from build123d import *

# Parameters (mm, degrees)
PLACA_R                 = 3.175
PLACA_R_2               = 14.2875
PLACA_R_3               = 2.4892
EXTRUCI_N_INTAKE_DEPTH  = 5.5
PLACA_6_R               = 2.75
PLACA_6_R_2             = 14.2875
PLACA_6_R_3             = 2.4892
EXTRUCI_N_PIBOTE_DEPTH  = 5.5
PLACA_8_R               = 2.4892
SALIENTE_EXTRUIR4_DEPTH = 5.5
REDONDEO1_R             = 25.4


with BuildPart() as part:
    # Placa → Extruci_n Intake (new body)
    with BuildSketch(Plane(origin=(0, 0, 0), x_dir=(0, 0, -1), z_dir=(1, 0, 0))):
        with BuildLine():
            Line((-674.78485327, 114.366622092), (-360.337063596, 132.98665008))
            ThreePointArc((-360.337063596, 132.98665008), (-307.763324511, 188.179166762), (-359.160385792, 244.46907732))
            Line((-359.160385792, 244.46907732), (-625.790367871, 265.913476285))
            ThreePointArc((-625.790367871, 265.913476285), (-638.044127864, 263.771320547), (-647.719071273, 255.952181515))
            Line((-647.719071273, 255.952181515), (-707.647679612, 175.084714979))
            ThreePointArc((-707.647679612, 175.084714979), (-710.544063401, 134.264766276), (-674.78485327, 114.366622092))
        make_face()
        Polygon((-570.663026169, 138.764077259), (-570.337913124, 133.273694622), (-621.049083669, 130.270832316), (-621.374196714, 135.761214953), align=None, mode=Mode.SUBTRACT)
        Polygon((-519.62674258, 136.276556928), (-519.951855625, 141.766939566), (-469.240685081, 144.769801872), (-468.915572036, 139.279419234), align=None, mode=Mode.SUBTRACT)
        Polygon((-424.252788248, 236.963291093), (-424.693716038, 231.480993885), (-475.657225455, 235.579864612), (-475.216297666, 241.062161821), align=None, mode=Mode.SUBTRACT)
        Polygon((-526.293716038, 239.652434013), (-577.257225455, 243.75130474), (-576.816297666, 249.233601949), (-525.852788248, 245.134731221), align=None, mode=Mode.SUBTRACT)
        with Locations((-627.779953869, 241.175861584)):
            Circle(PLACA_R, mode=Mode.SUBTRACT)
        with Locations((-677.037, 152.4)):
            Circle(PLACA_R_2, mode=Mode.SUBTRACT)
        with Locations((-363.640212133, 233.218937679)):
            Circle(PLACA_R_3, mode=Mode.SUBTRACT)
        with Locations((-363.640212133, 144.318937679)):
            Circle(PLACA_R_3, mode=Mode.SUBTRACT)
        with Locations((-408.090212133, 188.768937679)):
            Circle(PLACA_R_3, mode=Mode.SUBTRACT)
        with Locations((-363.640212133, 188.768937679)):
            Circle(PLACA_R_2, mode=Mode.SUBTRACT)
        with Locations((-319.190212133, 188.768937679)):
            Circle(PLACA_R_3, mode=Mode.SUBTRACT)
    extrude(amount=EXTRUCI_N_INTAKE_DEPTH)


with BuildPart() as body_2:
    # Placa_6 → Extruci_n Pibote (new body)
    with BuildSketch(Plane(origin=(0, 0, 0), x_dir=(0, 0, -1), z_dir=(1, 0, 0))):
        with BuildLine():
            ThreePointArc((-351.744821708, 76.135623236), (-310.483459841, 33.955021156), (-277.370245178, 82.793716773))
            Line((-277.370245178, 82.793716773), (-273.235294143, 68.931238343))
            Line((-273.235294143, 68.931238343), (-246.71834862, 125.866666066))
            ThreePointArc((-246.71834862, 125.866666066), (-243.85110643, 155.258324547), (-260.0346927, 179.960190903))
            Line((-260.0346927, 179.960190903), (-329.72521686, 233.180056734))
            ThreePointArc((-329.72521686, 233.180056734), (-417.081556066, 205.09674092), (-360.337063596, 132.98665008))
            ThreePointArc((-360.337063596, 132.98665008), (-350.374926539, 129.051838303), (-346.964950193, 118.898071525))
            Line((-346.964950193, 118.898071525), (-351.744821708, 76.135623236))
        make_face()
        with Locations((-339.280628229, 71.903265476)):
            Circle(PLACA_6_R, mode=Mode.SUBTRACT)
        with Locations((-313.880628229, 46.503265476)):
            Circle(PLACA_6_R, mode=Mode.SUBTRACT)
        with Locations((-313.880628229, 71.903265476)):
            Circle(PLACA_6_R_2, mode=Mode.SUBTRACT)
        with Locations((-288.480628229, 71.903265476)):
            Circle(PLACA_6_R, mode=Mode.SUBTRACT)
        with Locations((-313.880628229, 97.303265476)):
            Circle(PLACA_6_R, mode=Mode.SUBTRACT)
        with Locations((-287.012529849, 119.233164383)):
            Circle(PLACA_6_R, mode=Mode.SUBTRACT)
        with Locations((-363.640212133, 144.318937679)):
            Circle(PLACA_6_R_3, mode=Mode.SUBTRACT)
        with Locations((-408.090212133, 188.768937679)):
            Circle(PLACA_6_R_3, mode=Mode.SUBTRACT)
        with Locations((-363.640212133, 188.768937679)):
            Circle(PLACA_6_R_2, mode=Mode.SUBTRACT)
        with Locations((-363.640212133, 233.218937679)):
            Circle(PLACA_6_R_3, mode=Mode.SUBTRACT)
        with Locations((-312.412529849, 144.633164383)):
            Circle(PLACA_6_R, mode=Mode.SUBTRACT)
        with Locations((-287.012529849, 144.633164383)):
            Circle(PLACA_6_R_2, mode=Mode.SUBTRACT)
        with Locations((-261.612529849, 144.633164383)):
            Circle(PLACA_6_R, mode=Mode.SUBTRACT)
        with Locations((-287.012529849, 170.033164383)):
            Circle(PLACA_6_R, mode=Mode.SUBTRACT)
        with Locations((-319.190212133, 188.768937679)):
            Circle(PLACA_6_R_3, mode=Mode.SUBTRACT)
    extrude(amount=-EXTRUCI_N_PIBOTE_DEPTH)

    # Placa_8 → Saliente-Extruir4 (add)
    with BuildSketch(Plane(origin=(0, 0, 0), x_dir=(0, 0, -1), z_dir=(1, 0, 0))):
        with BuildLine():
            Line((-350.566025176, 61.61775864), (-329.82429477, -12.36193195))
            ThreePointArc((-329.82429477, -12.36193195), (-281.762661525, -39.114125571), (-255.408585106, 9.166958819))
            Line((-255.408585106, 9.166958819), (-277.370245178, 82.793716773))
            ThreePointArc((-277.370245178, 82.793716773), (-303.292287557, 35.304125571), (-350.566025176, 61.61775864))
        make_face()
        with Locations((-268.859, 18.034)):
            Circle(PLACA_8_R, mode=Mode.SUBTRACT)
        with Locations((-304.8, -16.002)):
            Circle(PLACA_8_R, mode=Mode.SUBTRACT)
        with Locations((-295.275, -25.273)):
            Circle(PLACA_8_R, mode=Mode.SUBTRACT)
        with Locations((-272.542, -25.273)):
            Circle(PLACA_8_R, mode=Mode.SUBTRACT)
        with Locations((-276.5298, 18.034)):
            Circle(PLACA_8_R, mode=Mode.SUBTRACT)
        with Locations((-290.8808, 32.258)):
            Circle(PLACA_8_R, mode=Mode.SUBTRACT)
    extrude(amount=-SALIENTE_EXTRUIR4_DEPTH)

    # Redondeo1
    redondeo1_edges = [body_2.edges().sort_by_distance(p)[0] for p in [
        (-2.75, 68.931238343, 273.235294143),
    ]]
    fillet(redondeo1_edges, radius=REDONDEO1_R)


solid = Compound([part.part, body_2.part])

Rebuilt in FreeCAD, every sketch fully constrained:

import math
import FreeCAD as App
import Part
import Sketcher
Q = App.Units.Quantity


def edges_at(feature, points):
    """Names of the edges that pass closest to the given points."""
    edges = feature.Shape.Edges
    near = lambda p: min(range(len(edges)), key=lambda i: edges[i].distToShape(Part.Vertex(*p))[0])
    return sorted({f"Edge{near(p) + 1}" for p in points})


def add_polygon(sketch, points):
    """Adds a closed chain of lines whose ends are joined by coincident constraints."""
    first, n = sketch.GeometryCount, len(points)
    for a, b in zip(points, points[1:] + points[:1]):
        sketch.addGeometry(Part.LineSegment(App.Vector(*a, 0), App.Vector(*b, 0)), False)
    for i in range(n):
        sketch.addConstraint(Sketcher.Constraint("Coincident", first + i, 2, first + (i + 1) % n, 1))

doc = App.newDocument("Part")
body = doc.addObject("PartDesign::Body", "Body")

# Sketch on YZ plane
sketch1 = doc.addObject("Sketcher::SketchObject", "Sketch")
body.addObject(sketch1)
sketch1.AttachmentSupport = (doc.YZ_Plane, [""])
sketch1.MapMode = "FlatFace"
sketch1.addGeometry(Part.LineSegment(App.Vector(114.4, 674.8, 0), App.Vector(133, 360.3, 0)), False)  # 0
sketch1.addGeometry(Part.ArcOfCircle(Part.Circle(App.Vector(188.8, 363.6, 0), App.Vector(0, 0, 1), 55.9), math.radians(-177), math.radians(-5)), False)  # 1
sketch1.addGeometry(Part.LineSegment(App.Vector(244.5, 359.2, 0), App.Vector(265.9, 625.8, 0)), False)  # 2
sketch1.addGeometry(Part.ArcOfCircle(Part.Circle(App.Vector(241.2, 627.8, 0), App.Vector(0, 0, 1), 24.8), math.radians(-5), math.radians(53)), False)  # 3
sketch1.addGeometry(Part.LineSegment(App.Vector(256, 647.7, 0), App.Vector(175.1, 707.6, 0)), False)  # 4
sketch1.addGeometry(Part.ArcOfCircle(Part.Circle(App.Vector(152.4, 677, 0), App.Vector(0, 0, 1), 38.1), math.radians(53), math.radians(183)), False)  # 5
sketch1.addGeometry(Part.Circle(App.Vector(152.4, 677, 0), App.Vector(0, 0, 1), 14.3), False)  # 6
add_polygon(sketch1, [(135.8, 621.4), (138.8, 570.7), (133.3, 570.3), (130.3, 621)])  # lines 7-10
add_polygon(sketch1, [(139.3, 468.9), (136.3, 519.6), (141.8, 520), (144.8, 469.2)])  # lines 11-14
sketch1.addGeometry(Part.Circle(App.Vector(144.3, 363.6, 0), App.Vector(0, 0, 1), 2.5), False)  # 15
sketch1.addGeometry(Part.Circle(App.Vector(188.8, 408.1, 0), App.Vector(0, 0, 1), 2.5), False)  # 16
sketch1.addGeometry(Part.Circle(App.Vector(188.8, 363.6, 0), App.Vector(0, 0, 1), 14.3), False)  # 17
sketch1.addGeometry(Part.Circle(App.Vector(188.8, 319.2, 0), App.Vector(0, 0, 1), 2.5), False)  # 18
sketch1.addGeometry(Part.Circle(App.Vector(241.2, 627.8, 0), App.Vector(0, 0, 1), 3.2), False)  # 19
add_polygon(sketch1, [(245.1, 525.9), (239.7, 526.3), (243.8, 577.3), (249.2, 576.8)])  # lines 20-23
add_polygon(sketch1, [(241.1, 475.2), (237, 424.3), (231.5, 424.7), (235.6, 475.7)])  # lines 24-27
sketch1.addGeometry(Part.Circle(App.Vector(233.2, 363.6, 0), App.Vector(0, 0, 1), 2.5), False)  # 28
sketch1.addConstraint([
    Sketcher.Constraint("Tangent", 0, 2, 1, 1),
    Sketcher.Constraint("Tangent", 1, 2, 2, 1),
    Sketcher.Constraint("Tangent", 2, 2, 3, 1),
    Sketcher.Constraint("Tangent", 3, 2, 4, 1),
    Sketcher.Constraint("Tangent", 4, 2, 5, 1),
    Sketcher.Constraint("Tangent", 5, 2, 0, 1),
    Sketcher.Constraint("Coincident", 6, 3, 5, 3),
    Sketcher.Constraint("Coincident", 17, 3, 1, 3),
    Sketcher.Constraint("Coincident", 19, 3, 3, 3),
    Sketcher.Constraint("Equal", 15, 16),
    Sketcher.Constraint("Equal", 6, 17),
    Sketcher.Constraint("Equal", 16, 18),
    Sketcher.Constraint("Equal", 18, 28),
    Sketcher.Constraint("Parallel", 0, 7),
    Sketcher.Constraint("Perpendicular", 7, 8),
    Sketcher.Constraint("Perpendicular", 8, 9),
    Sketcher.Constraint("Perpendicular", 9, 10),
    Sketcher.Constraint("Perpendicular", 10, 11),
    Sketcher.Constraint("Perpendicular", 11, 12),
    Sketcher.Constraint("Perpendicular", 12, 13),
    Sketcher.Constraint("Perpendicular", 13, 14),
    Sketcher.Constraint("Perpendicular", 2, 20),
    Sketcher.Constraint("Perpendicular", 20, 21),
    Sketcher.Constraint("Perpendicular", 21, 22),
    Sketcher.Constraint("Perpendicular", 22, 23),
    Sketcher.Constraint("Parallel", 23, 24),
    Sketcher.Constraint("Perpendicular", 24, 25),
    Sketcher.Constraint("Perpendicular", 25, 26),
    Sketcher.Constraint("Perpendicular", 26, 27),
    Sketcher.Constraint("Horizontal", 1, 3, 15, 3),
    Sketcher.Constraint("Horizontal", 17, 3, 28, 3),
    Sketcher.Constraint("Vertical", 1, 3, 16, 3),
    Sketcher.Constraint("Vertical", 17, 3, 18, 3),
    Sketcher.Constraint("Equal", 9, 11),
    Sketcher.Constraint("Equal", 10, 12),
    Sketcher.Constraint("Equal", 14, 20),
    Sketcher.Constraint("Equal", 23, 24),
    Sketcher.Constraint("Equal", 22, 25),
    Sketcher.Constraint("Radius", 1, Q("2.2 in")),
    Sketcher.Constraint("Radius", 5, Q("1.5 in")),
    Sketcher.Constraint("Diameter", 19, Q("0.25 in")),
    Sketcher.Constraint("Distance", 7, Q("2 in")),
    Sketcher.Constraint("Diameter", 6, Q("1.125 in")),
    Sketcher.Constraint("Diameter", 15, Q("0.196 in")),
    Sketcher.Constraint("DistanceX", -1, 1, 5, 3, Q("6 in")),
    Sketcher.Constraint("DistanceY", 18, 3, 16, 3, Q("3.5 in")),
    Sketcher.Constraint("DistanceX", 15, 3, 28, 3, Q("3.5 in")),
    Sketcher.Constraint("DistanceX", 15, 3, 1, 3, Q("1.75 in")),
    Sketcher.Constraint("DistanceY", 1, 3, 16, 3, Q("1.75 in")),
    Sketcher.Constraint("DistanceY", -1, 1, 5, 3, Q("26.655 in")),
    Sketcher.Constraint("Radius", 3, Q("24.817495 mm")),
    Sketcher.Constraint("Distance", 0, Q("314.9986 mm")),
    Sketcher.Constraint("Distance", 8, Q("5.5 mm")),
    Sketcher.Constraint("DistanceX", -1, 1, 13, 2, Q("144.769802 mm")),
    Sketcher.Constraint("DistanceX", -1, 1, 22, 2, Q("249.233602 mm")),
    Sketcher.Constraint("DistanceY", 3, 3, 5, 2, Q("47.004899 mm")),
    Sketcher.Constraint("DistanceX", -1, 1, 3, 3, Q("241.175862 mm")),
    Sketcher.Constraint("DistanceX", -1, 1, 0, 2, Q("132.98665 mm")),
    Sketcher.Constraint("DistanceX", -1, 1, 23, 2, Q("245.134731 mm")),
    Sketcher.Constraint("DistanceY", -1, 1, 23, 2, Q("525.852788 mm")),
    Sketcher.Constraint("DistanceX", -1, 1, 24, 2, Q("236.963291 mm")),
    Sketcher.Constraint("DistanceY", -1, 1, 24, 2, Q("424.252788 mm")),
    Sketcher.Constraint("DistanceY", 8, 2, 5, 2, Q("104.44694 mm")),
    Sketcher.Constraint("DistanceX", 5, 2, 9, 2, Q("15.90421 mm")),
    Sketcher.Constraint("DistanceY", 11, 2, 8, 2, Q("50.711171 mm")),
])
pad1 = doc.addObject("PartDesign::Pad", "Pad")
body.addObject(pad1)
pad1.Profile = sketch1
pad1.Length = 5.5
body2 = doc.addObject("PartDesign::Body", "Body001")

# Sketch on YZ plane
sketch2 = doc.addObject("Sketcher::SketchObject", "Sketch001")
body2.addObject(sketch2)
sketch2.AttachmentSupport = (doc.getObject("YZ_Plane001"), [""])
sketch2.MapMode = "FlatFace"
sketch2.addGeometry([
    Part.ArcOfCircle(Part.Circle(App.Vector(71.9, 313.9, 0), App.Vector(0, 0, 1), 38.1), math.radians(84), math.radians(287)),  # 0
    Part.LineSegment(App.Vector(82.8, 277.4, 0), App.Vector(68.9, 273.2, 0)),  # 1
    Part.LineSegment(App.Vector(68.9, 273.2, 0), App.Vector(125.9, 246.7, 0)),  # 2
    Part.ArcOfCircle(Part.Circle(App.Vector(144.6, 287, 0), App.Vector(0, 0, 1), 44.4), math.radians(-115), math.radians(-37)),  # 3
    Part.LineSegment(App.Vector(180, 260, 0), App.Vector(233.2, 329.7, 0)),  # 4
    Part.ArcOfCircle(Part.Circle(App.Vector(188.8, 363.6, 0), App.Vector(0, 0, 1), 55.9), math.radians(-37), math.radians(183)),  # 5
    Part.ArcOfCircle(Part.Circle(App.Vector(120.3, 359.6, 0), App.Vector(0, 0, 1), 12.7), math.radians(-96), math.radians(3)),  # 6
    Part.LineSegment(App.Vector(118.9, 347, 0), App.Vector(76.1, 351.7, 0)),  # 7
    Part.Circle(App.Vector(71.9, 339.3, 0), App.Vector(0, 0, 1), 2.8),  # 8
    Part.Circle(App.Vector(46.5, 313.9, 0), App.Vector(0, 0, 1), 2.8),  # 9
    Part.Circle(App.Vector(71.9, 313.9, 0), App.Vector(0, 0, 1), 14.3),  # 10
    Part.Circle(App.Vector(71.9, 288.5, 0), App.Vector(0, 0, 1), 2.8),  # 11
    Part.Circle(App.Vector(97.3, 313.9, 0), App.Vector(0, 0, 1), 2.8),  # 12
    Part.Circle(App.Vector(119.2, 287, 0), App.Vector(0, 0, 1), 2.8),  # 13
    Part.Circle(App.Vector(144.3, 363.6, 0), App.Vector(0, 0, 1), 2.5),  # 14
    Part.Circle(App.Vector(188.8, 408.1, 0), App.Vector(0, 0, 1), 2.5),  # 15
    Part.Circle(App.Vector(188.8, 363.6, 0), App.Vector(0, 0, 1), 14.3),  # 16
    Part.Circle(App.Vector(233.2, 363.6, 0), App.Vector(0, 0, 1), 2.5),  # 17
    Part.Circle(App.Vector(144.6, 312.4, 0), App.Vector(0, 0, 1), 2.8),  # 18
    Part.Circle(App.Vector(144.6, 287, 0), App.Vector(0, 0, 1), 14.3),  # 19
    Part.Circle(App.Vector(144.6, 261.6, 0), App.Vector(0, 0, 1), 2.8),  # 20
    Part.Circle(App.Vector(170, 287, 0), App.Vector(0, 0, 1), 2.8),  # 21
    Part.Circle(App.Vector(188.8, 319.2, 0), App.Vector(0, 0, 1), 2.5),  # 22
], False)
sketch2.addConstraint([
    Sketcher.Constraint("Tangent", 0, 2, 1, 1),
    Sketcher.Constraint("Coincident", 1, 2, 2, 1),
    Sketcher.Constraint("Tangent", 2, 2, 3, 1),
    Sketcher.Constraint("Tangent", 3, 2, 4, 1),
    Sketcher.Constraint("Tangent", 4, 2, 5, 1),
    Sketcher.Constraint("Tangent", 5, 2, 6, 2),
    Sketcher.Constraint("Tangent", 6, 1, 7, 1),
    Sketcher.Constraint("Tangent", 7, 2, 0, 1),
    Sketcher.Constraint("Coincident", 10, 3, 0, 3),
    Sketcher.Constraint("Coincident", 16, 3, 5, 3),
    Sketcher.Constraint("Coincident", 19, 3, 3, 3),
    Sketcher.Constraint("Equal", 8, 9),
    Sketcher.Constraint("Equal", 9, 11),
    Sketcher.Constraint("Equal", 11, 12),
    Sketcher.Constraint("Equal", 12, 13),
    Sketcher.Constraint("Equal", 14, 15),
    Sketcher.Constraint("Equal", 10, 16),
    Sketcher.Constraint("Equal", 15, 17),
    Sketcher.Constraint("Equal", 13, 18),
    Sketcher.Constraint("Equal", 16, 19),
    Sketcher.Constraint("Equal", 18, 20),
    Sketcher.Constraint("Equal", 20, 21),
    Sketcher.Constraint("Equal", 17, 22),
    Sketcher.Constraint("Horizontal", 0, 3, 9, 3),
    Sketcher.Constraint("Horizontal", 10, 3, 12, 3),
    Sketcher.Constraint("Horizontal", 3, 3, 13, 3),
    Sketcher.Constraint("Horizontal", 5, 3, 14, 3),
    Sketcher.Constraint("Horizontal", 16, 3, 17, 3),
    Sketcher.Constraint("Horizontal", 19, 3, 21, 3),
    Sketcher.Constraint("Vertical", 0, 3, 8, 3),
    Sketcher.Constraint("Vertical", 10, 3, 11, 3),
    Sketcher.Constraint("Vertical", 5, 3, 15, 3),
    Sketcher.Constraint("Vertical", 3, 3, 18, 3),
    Sketcher.Constraint("Vertical", 19, 3, 20, 3),
    Sketcher.Constraint("Vertical", 16, 3, 22, 3),
    Sketcher.Constraint("Radius", 0, Q("1.5 in")),
    Sketcher.Constraint("Radius", 5, Q("2.2 in")),
    Sketcher.Constraint("Radius", 6, Q("0.5 in")),
    Sketcher.Constraint("Radius", 3, Q("1.75 in")),
    Sketcher.Constraint("Diameter", 10, Q("1.125 in")),
    Sketcher.Constraint("Diameter", 14, Q("0.196 in")),
    Sketcher.Constraint("DistanceY", 0, 3, 8, 3, Q("1 in")),
    Sketcher.Constraint("DistanceX", 9, 3, 0, 3, Q("1 in")),
    Sketcher.Constraint("DistanceY", 11, 3, 0, 3, Q("1 in")),
    Sketcher.Constraint("DistanceX", 0, 3, 12, 3, Q("1 in")),
    Sketcher.Constraint("DistanceX", 13, 3, 3, 3, Q("1 in")),
    Sketcher.Constraint("DistanceY", 3, 3, 18, 3, Q("1 in")),
    Sketcher.Constraint("DistanceY", 20, 3, 3, 3, Q("1 in")),
    Sketcher.Constraint("DistanceX", 3, 3, 21, 3, Q("1 in")),
    Sketcher.Constraint("DistanceX", 14, 3, 17, 3, Q("3.5 in")),
    Sketcher.Constraint("Diameter", 8, Q("5.5 mm")),
    Sketcher.Constraint("DistanceX", 14, 3, 5, 3, Q("1.75 in")),
    Sketcher.Constraint("DistanceY", 5, 3, 15, 3, Q("1.75 in")),
    Sketcher.Constraint("DistanceY", 22, 3, 5, 3, Q("1.75 in")),
    Sketcher.Constraint("DistanceX", 0, 3, 3, 3, Q("72.729899 mm")),
    Sketcher.Constraint("DistanceY", 3, 3, 0, 3, Q("26.868098 mm")),
    Sketcher.Constraint("DistanceX", 2, 2, 20, 3, Q("18.766498 mm")),
    Sketcher.Constraint("Distance", 7, Q("43.02876 mm")),
    Sketcher.Constraint("DistanceY", -1, 1, 0, 3, Q("313.880628 mm")),
    Sketcher.Constraint("DistanceY", -1, 1, 6, 3, Q("359.586348 mm")),
    Sketcher.Constraint("DistanceX", -1, 1, 1, 2, Q("68.931238 mm")),
    Sketcher.Constraint("DistanceX", -1, 1, 3, 2, Q("179.960191 mm")),
    Sketcher.Constraint("DistanceX", -1, 1, 5, 2, Q("132.98665 mm")),
])
pad2 = doc.addObject("PartDesign::Pad", "Pad001")
body2.addObject(pad2)
pad2.Profile = sketch2
pad2.Length = 5.5
pad2.Reversed = True

# Sketch on YZ plane
sketch3 = doc.addObject("Sketcher::SketchObject", "Sketch002")
body2.addObject(sketch3)
sketch3.AttachmentSupport = (doc.getObject("YZ_Plane001"), [""])
sketch3.MapMode = "FlatFace"
sketch3.addGeometry([
    Part.LineSegment(App.Vector(61.6, 350.6, 0), App.Vector(-12.4, 329.8, 0)),  # 0
    Part.ArcOfCircle(Part.Circle(App.Vector(-1.9, 292.5, 0), App.Vector(0, 0, 1), 38.7), math.radians(106), math.radians(287)),  # 1
    Part.LineSegment(App.Vector(9.2, 255.4, 0), App.Vector(82.8, 277.4, 0)),  # 2
    Part.ArcOfCircle(Part.Circle(App.Vector(71.9, 313.9, 0), App.Vector(0, 0, 1), 38.1), math.radians(106), math.radians(287)),  # 3
    Part.Circle(App.Vector(-16, 304.8, 0), App.Vector(0, 0, 1), 2.5),  # 4
    Part.Circle(App.Vector(-25.3, 295.3, 0), App.Vector(0, 0, 1), 2.5),  # 5
    Part.Circle(App.Vector(-25.3, 272.5, 0), App.Vector(0, 0, 1), 2.5),  # 6
    Part.Circle(App.Vector(32.3, 290.9, 0), App.Vector(0, 0, 1), 2.5),  # 7
    Part.Circle(App.Vector(18, 276.5, 0), App.Vector(0, 0, 1), 2.5),  # 8
    Part.Circle(App.Vector(18, 268.9, 0), App.Vector(0, 0, 1), 2.5),  # 9
], False)
sketch3.addConstraint([
    Sketcher.Constraint("Tangent", 0, 2, 1, 1),
    Sketcher.Constraint("Tangent", 1, 2, 2, 1),
    Sketcher.Constraint("Tangent", 2, 2, 3, 2),
    Sketcher.Constraint("Tangent", 3, 1, 0, 1),
    Sketcher.Constraint("Equal", 4, 5),
    Sketcher.Constraint("Equal", 5, 6),
    Sketcher.Constraint("Equal", 6, 7),
    Sketcher.Constraint("Equal", 7, 8),
    Sketcher.Constraint("Equal", 8, 9),
    Sketcher.Constraint("Vertical", 5, 3, 6, 3),
    Sketcher.Constraint("Vertical", 8, 3, 9, 3),
    Sketcher.Constraint("Radius", 3, Q("1.5 in")),
    Sketcher.Constraint("Diameter", 4, Q("0.196 in")),
    Sketcher.Constraint("DistanceY", -1, 1, 4, 3, Q("12 in")),
    Sketcher.Constraint("Radius", 1, Q("1.525 in")),
    Sketcher.Constraint("DistanceX", 4, 3, 7, 3, Q("1.9 in")),
    Sketcher.Constraint("DistanceX", 4, 3, -1, 1, Q("0.63 in")),
    Sketcher.Constraint("DistanceY", -1, 1, 6, 3, Q("10.73 in")),
    Sketcher.Constraint("DistanceX", -1, 1, 8, 3, Q("0.71 in")),
    Sketcher.Constraint("DistanceX", 5, 3, 1, 3, Q("0.92 in")),
    Sketcher.Constraint("DistanceX", 1, 3, -1, 1, Q("0.075 in")),
    Sketcher.Constraint("DistanceY", -1, 1, 5, 3, Q("11.625 in")),
    Sketcher.Constraint("DistanceY", -1, 1, 7, 3, Q("11.452 in")),
    Sketcher.Constraint("DistanceY", -1, 1, 8, 3, Q("10.887 in")),
    Sketcher.Constraint("DistanceY", -1, 1, 9, 3, Q("10.585 in")),
    Sketcher.Constraint("DistanceY", -1, 1, 3, 3, Q("313.880628 mm")),
    Sketcher.Constraint("DistanceX", 0, 2, -1, 1, Q("12.361932 mm")),
    Sketcher.Constraint("DistanceX", -1, 1, 3, 1, Q("61.617759 mm")),
])
pad3 = doc.addObject("PartDesign::Pad", "Pad002")
body2.addObject(pad3)
pad3.Profile = sketch3
pad3.Length = 5.5
pad3.Reversed = True
doc.recompute()

fillet = doc.addObject("PartDesign::Fillet", "Fillet")
body2.addObject(fillet)
fillet.Base = (pad3, edges_at(pad3, [(-2.75, 68.931, 273.235)]))
fillet.Radius = Q("1 in")

doc.recompute()
